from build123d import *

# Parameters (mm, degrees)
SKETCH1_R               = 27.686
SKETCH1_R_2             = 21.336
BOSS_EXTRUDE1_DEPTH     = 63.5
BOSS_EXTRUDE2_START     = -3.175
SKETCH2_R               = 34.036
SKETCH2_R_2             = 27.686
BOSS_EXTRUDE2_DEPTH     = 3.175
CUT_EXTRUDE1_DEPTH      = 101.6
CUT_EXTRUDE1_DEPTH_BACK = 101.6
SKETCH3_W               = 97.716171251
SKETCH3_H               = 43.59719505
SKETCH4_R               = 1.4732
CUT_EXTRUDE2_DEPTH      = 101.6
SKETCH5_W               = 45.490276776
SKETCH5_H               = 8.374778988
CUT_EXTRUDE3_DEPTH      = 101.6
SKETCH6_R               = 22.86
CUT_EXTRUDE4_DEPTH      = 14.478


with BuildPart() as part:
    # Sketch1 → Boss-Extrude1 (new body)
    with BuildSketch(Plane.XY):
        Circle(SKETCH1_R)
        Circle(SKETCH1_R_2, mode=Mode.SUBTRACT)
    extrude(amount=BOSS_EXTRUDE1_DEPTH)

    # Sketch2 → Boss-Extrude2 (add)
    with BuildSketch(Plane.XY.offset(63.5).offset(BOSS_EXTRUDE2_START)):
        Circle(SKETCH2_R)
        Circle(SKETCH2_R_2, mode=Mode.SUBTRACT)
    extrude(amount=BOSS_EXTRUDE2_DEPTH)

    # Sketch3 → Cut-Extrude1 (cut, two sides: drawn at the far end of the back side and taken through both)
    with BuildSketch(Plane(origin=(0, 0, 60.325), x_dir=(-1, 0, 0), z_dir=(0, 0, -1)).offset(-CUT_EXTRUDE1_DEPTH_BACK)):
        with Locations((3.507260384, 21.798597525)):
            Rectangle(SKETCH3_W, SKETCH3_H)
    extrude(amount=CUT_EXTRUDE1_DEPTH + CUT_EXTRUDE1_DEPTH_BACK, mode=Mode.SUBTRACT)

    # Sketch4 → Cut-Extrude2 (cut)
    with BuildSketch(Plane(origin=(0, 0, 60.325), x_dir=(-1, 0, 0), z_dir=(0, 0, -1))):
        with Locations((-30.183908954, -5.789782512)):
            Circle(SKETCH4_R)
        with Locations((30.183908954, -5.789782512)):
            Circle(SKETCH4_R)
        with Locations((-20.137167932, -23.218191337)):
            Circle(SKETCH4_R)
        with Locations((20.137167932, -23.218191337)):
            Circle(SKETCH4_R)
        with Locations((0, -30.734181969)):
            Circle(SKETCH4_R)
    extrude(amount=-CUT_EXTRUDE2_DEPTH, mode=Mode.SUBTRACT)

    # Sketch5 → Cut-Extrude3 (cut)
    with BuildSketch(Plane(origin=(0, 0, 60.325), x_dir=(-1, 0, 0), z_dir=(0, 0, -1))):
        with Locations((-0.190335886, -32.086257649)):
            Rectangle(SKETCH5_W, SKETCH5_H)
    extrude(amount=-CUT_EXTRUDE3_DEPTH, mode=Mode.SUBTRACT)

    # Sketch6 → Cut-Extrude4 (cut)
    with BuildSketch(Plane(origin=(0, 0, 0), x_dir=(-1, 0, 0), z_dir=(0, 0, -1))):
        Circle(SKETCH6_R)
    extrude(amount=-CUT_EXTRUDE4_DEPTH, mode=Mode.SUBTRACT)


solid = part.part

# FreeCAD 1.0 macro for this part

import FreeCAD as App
import Part
import Sketcher

V = App.Vector
Q = App.Units.Quantity


def add_polygon(sketch, points):
    """Adds a closed chain of lines whose ends are joined by coincident constraints."""
    first, n = sketch.GeometryCount, len(points)
    for a, b in zip(points, points[1:] + points[:1]):
        sketch.addGeometry(Part.LineSegment(App.Vector(*a, 0), App.Vector(*b, 0)), False)
    for i in range(n):
        sketch.addConstraint(Sketcher.Constraint("Coincident", first + i, 2, first + (i + 1) % n, 1))

doc = App.newDocument("Part")
params = doc.addObject("Spreadsheet::Sheet", "Params")
for row, (alias, value) in enumerate([
    ("sketch1_diameter", "2.18 in"),
    ("sketch1_diameter2", "1.68 in"),
    ("pad1_length", "2.5 in"),
    ("sketch2_diameter", "2.68 in"),
    ("sketch2_diameter2", "2.18 in"),
    ("pad2_length", "0.125 in"),
    ("sketch4_diameter", "0.116 in"),
    ("pocket2_length", "4 in"),
    ("pocket3_length", "4 in"),
    ("sketch6_diameter", "1.8 in"),
    ("pocket4_length", "0.57 in"),
], start=1):
    params.set(f"A{row}", alias)
    params.set(f"B{row}", "=" + value)
    params.setAlias(f"B{row}", alias)

body = doc.addObject("PartDesign::Body", "Body")

# Sketch on XY plane
sketch1 = doc.addObject("Sketcher::SketchObject", "Sketch")
body.addObject(sketch1)
sketch1.AttachmentSupport = (doc.XY_Plane, [""])
sketch1.MapMode = "FlatFace"
sketch1.addGeometry([
    Part.Circle(V(0, 0, 0), V(0, 0, 1), 28),
    Part.Circle(V(0, 0, 0), V(0, 0, 1), 21),
], False)
sketch1.addConstraint([
    Sketcher.Constraint("Coincident", 0, 3, -1, 1),
    Sketcher.Constraint("Coincident", 1, 3, -1, 1),
    Sketcher.Constraint("Diameter", 0, Q("2.18 in")),
    Sketcher.Constraint("Diameter", 1, Q("1.68 in")),
])
sketch1.setExpression("Constraints[2]", "Params.sketch1_diameter")
sketch1.setExpression("Constraints[3]", "Params.sketch1_diameter2")
pad1 = doc.addObject("PartDesign::Pad", "Pad")
body.addObject(pad1)
pad1.Profile = sketch1
pad1.setExpression("Length", "Params.pad1_length")

# Sketch on XY plane
sketch2 = doc.addObject("Sketcher::SketchObject", "Sketch001")
body.addObject(sketch2)
sketch2.AttachmentSupport = (doc.XY_Plane, [""])
sketch2.MapMode = "FlatFace"
sketch2.AttachmentOffset = App.Placement(V(0, 0, 2.375 * 25.4), App.Rotation())
sketch2.addGeometry([
    Part.Circle(V(0, 0, 0), V(0, 0, 1), 34),
    Part.Circle(V(0, 0, 0), V(0, 0, 1), 28),
], False)
sketch2.addConstraint([
    Sketcher.Constraint("Coincident", 0, 3, -1, 1),
    Sketcher.Constraint("Coincident", 1, 3, -1, 1),
    Sketcher.Constraint("Diameter", 0, Q("2.68 in")),
    Sketcher.Constraint("Diameter", 1, Q("2.18 in")),
])
sketch2.setExpression("Constraints[2]", "Params.sketch2_diameter")
sketch2.setExpression("Constraints[3]", "Params.sketch2_diameter2")
pad2 = doc.addObject("PartDesign::Pad", "Pad001")
body.addObject(pad2)
pad2.Profile = sketch2
pad2.setExpression("Length", "Params.pad2_length")

# Sketch on XY plane
sketch3 = doc.addObject("Sketcher::SketchObject", "Sketch002")
body.addObject(sketch3)
sketch3.AttachmentSupport = (doc.XY_Plane, [""])
sketch3.MapMode = "FlatFace"
sketch3.AttachmentOffset = App.Placement(V(0, 0, 2.375 * 25.4), App.Rotation())
add_polygon(sketch3, [(45, 44), (45, 0), (-52, 0), (-52, 44)])  # lines 0-3
sketch3.addConstraint([
    Sketcher.Constraint("Vertical", 0),
    Sketcher.Constraint("Horizontal", 1),
    Sketcher.Constraint("Vertical", 2),
    Sketcher.Constraint("Horizontal", 3),
    Sketcher.Constraint("PointOnObject", 0, 2, -1),
    Sketcher.Constraint("DistanceX", 1, 2, 1, 1, Q("97.716171 mm")),
    Sketcher.Constraint("DistanceY", 0, 2, 0, 1, Q("43.597195 mm")),
    Sketcher.Constraint("DistanceX", -1, 1, 0, 2, Q("45.350825 mm")),
])
pocket1 = doc.addObject("PartDesign::Pocket", "Pocket")
body.addObject(pocket1)
pocket1.Profile = sketch3
pocket1.Type = "ThroughAll"
pocket1.Midplane = True

# Sketch on XY plane
sketch4 = doc.addObject("Sketcher::SketchObject", "Sketch003")
body.addObject(sketch4)
sketch4.AttachmentSupport = (doc.XY_Plane, [""])
sketch4.MapMode = "FlatFace"
sketch4.AttachmentOffset = App.Placement(V(0, 0, 2.375 * 25.4), App.Rotation())
sketch4.addGeometry([
    Part.Circle(V(30.2, -5.8, 0), V(0, 0, 1), 1.5),  # 0
    Part.Circle(V(-30.2, -5.8, 0), V(0, 0, 1), 1.5),  # 1
    Part.Circle(V(20.1, -23.2, 0), V(0, 0, 1), 1.5),  # 2
    Part.Circle(V(-20.1, -23.2, 0), V(0, 0, 1), 1.5),  # 3
    Part.Circle(V(0, -30.7, 0), V(0, 0, 1), 1.5),  # 4
], False)
sketch4.addConstraint([
    Sketcher.Constraint("Equal", 0, 1),
    Sketcher.Constraint("Equal", 1, 2),
    Sketcher.Constraint("Equal", 2, 3),
    Sketcher.Constraint("Equal", 3, 4),
    Sketcher.Constraint("Symmetric", 0, 3, 1, 3, -2),
    Sketcher.Constraint("Symmetric", 2, 3, 3, 3, -2),
    Sketcher.Constraint("PointOnObject", 4, 3, -2),
    Sketcher.Constraint("Diameter", 0, Q("0.116 in")),
    Sketcher.Constraint("DistanceY", 4, 3, 0, 3, Q("24.944399 mm")),
    Sketcher.Constraint("DistanceX", -1, 1, 0, 3, Q("30.183909 mm")),
    Sketcher.Constraint("DistanceY", 2, 3, -1, 1, Q("23.218191 mm")),
    Sketcher.Constraint("DistanceY", 4, 3, -1, 1, Q("30.734182 mm")),
    Sketcher.Constraint("DistanceX", 2, 3, 0, 3, Q("10.046741 mm")),
])
sketch4.setExpression("Constraints[7]", "Params.sketch4_diameter")
pocket2 = doc.addObject("PartDesign::Pocket", "Pocket001")
body.addObject(pocket2)
pocket2.Profile = sketch4
pocket2.setExpression("Length", "Params.pocket2_length")
pocket2.Reversed = True

# Sketch on XY plane
sketch5 = doc.addObject("Sketcher::SketchObject", "Sketch004")
body.addObject(sketch5)
sketch5.AttachmentSupport = (doc.XY_Plane, [""])
sketch5.MapMode = "FlatFace"
sketch5.AttachmentOffset = App.Placement(V(0, 0, 2.375 * 25.4), App.Rotation())
add_polygon(sketch5, [(23, -28), (23, -36), (-23, -36), (-23, -28)])  # lines 0-3
sketch5.addConstraint([
    Sketcher.Constraint("Vertical", 0),
    Sketcher.Constraint("Horizontal", 1),
    Sketcher.Constraint("Vertical", 2),
    Sketcher.Constraint("Horizontal", 3),
    Sketcher.Constraint("DistanceY", 0, 2, 0, 1, Q("8.374779 mm")),
    Sketcher.Constraint("DistanceX", 1, 2, 1, 1, Q("45.490277 mm")),
    Sketcher.Constraint("DistanceY", 2, 2, -1, 1, Q("27.898868 mm")),
    Sketcher.Constraint("DistanceX", -1, 1, 0, 2, Q("22.935474 mm")),
])
pocket3 = doc.addObject("PartDesign::Pocket", "Pocket002")
body.addObject(pocket3)
pocket3.Profile = sketch5
pocket3.setExpression("Length", "Params.pocket3_length")
pocket3.Reversed = True

# Sketch on XY plane
sketch6 = doc.addObject("Sketcher::SketchObject", "Sketch005")
body.addObject(sketch6)
sketch6.AttachmentSupport = (doc.XY_Plane, [""])
sketch6.MapMode = "FlatFace"
sketch6.addGeometry(Part.Circle(V(0, 0, 0), V(0, 0, 1), 23), False)
sketch6.addConstraint([
    Sketcher.Constraint("Coincident", 0, 3, -1, 1),
    Sketcher.Constraint("Diameter", 0, Q("1.8 in")),
])
sketch6.setExpression("Constraints[1]", "Params.sketch6_diameter")
pocket4 = doc.addObject("PartDesign::Pocket", "Pocket003")
body.addObject(pocket4)
pocket4.Profile = sketch6
pocket4.setExpression("Length", "Params.pocket4_length")
pocket4.Reversed = True

doc.recompute()
